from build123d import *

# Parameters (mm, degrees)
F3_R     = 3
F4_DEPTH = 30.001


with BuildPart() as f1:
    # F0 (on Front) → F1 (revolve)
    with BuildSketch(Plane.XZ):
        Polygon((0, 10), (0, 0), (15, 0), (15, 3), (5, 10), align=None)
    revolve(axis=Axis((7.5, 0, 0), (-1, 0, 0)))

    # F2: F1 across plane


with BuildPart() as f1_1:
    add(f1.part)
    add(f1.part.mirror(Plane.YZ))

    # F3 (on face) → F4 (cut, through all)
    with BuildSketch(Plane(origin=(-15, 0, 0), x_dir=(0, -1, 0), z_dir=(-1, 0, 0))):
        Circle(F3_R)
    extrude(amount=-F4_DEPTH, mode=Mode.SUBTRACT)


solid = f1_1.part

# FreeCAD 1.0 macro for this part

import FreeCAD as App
import Part
import Sketcher
Q = App.Units.Quantity

doc = App.newDocument("Part")
body = doc.addObject("PartDesign::Body", "Body")

sketch1 = body.newObject("Sketcher::SketchObject", "Sketch")
sketch1.AttachmentSupport = (doc.getObject("XZ_Plane"), [""])
sketch1.MapMode = "FlatFace"
sketch1.addGeometry([
    Part.LineSegment(App.Vector(0, 10, 0), App.Vector(0, 0, 0)),
    Part.LineSegment(App.Vector(0, 0, 0), App.Vector(15, 0, 0)),
    Part.LineSegment(App.Vector(15, 0, 0), App.Vector(15, 3, 0)),
    Part.LineSegment(App.Vector(15, 3, 0), App.Vector(5, 10, 0)),
    Part.LineSegment(App.Vector(5, 10, 0), App.Vector(0, 10, 0)),
], False)
sketch1.addConstraint([
    Sketcher.Constraint("Coincident", 0, 2, 1, 1),
    Sketcher.Constraint("Coincident", 1, 2, 2, 1),
    Sketcher.Constraint("Coincident", 2, 2, 3, 1),
    Sketcher.Constraint("Coincident", 3, 2, 4, 1),
    Sketcher.Constraint("Coincident", 4, 2, 0, 1),
    Sketcher.Constraint("Vertical", 0),
    Sketcher.Constraint("Horizontal", 1),
    Sketcher.Constraint("Vertical", 2),
    Sketcher.Constraint("Horizontal", 4),
    Sketcher.Constraint("Coincident", 0, 2, -1, 1),
    Sketcher.Constraint("DistanceX", 1, 1, 1, 2, Q("15 mm")),
    Sketcher.Constraint("DistanceX", 4, 2, 4, 1, Q("5 mm")),
    Sketcher.Constraint("DistanceY", 0, 2, 0, 1, Q("10 mm")),
    Sketcher.Constraint("DistanceY", 2, 1, 2, 2, Q("3 mm")),
])
revolution = body.newObject("PartDesign::Revolution", "Revolution")
revolution.Profile = sketch1
revolution.ReferenceAxis = (sketch1, ["H_Axis"])
revolution.Angle = 360
body2 = doc.addObject("PartDesign::Body", "Body001")
doc.recompute()

body2.BaseFeature = body
doc.recompute()

mirroring = doc.addObject("Part::Mirroring", "Mirroring")
mirroring.Source = body
mirroring.Base = App.Vector(0, 0, 0)
mirroring.Normal = App.Vector(1, 0, 0)
body3 = doc.addObject("PartDesign::Body", "Body002")
body3.BaseFeature = mirroring
boolean = body2.newObject("PartDesign::Boolean", "Boolean")
boolean.Type = "Fuse"
boolean.addObjects([body3])
doc.recompute()

sketch2 = body2.newObject("Sketcher::SketchObject", "Sketch001")
sketch2.AttachmentSupport = (doc.getObject("YZ_Plane001"), [""])
sketch2.MapMode = "FlatFace"
sketch2.AttachmentOffset = App.Placement(App.Vector(0, 0, -15), App.Rotation())
sketch2.addGeometry(Part.Circle(App.Vector(0, 0, 0), App.Vector(0, 0, 1), 3), False)
sketch2.addConstraint([
    Sketcher.Constraint("Coincident", 0, 3, -1, 1),
    Sketcher.Constraint("Diameter", 0, Q("6 mm")),
])
pocket1 = body2.newObject("PartDesign::Pocket", "Pocket")
pocket1.Profile = sketch2
pocket1.Type = "ThroughAll"
pocket1.Reversed = True
mirroring.Visibility = False

doc.recompute()
